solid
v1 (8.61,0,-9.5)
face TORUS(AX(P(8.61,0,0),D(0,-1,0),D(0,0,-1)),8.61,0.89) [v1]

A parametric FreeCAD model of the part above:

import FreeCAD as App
import Part
import Sketcher

V = App.Vector

doc = App.newDocument("Part")
params = doc.addObject("Spreadsheet::Sheet", "Params")
for row, (alias, value) in enumerate([
    ("sketch1_diameter", "1.78 mm"),
    ("sketch1_height", "10 mm"),
    ("revolution_angle", "360 deg"),
], start=1):
    params.set(f"A{row}", alias)
    params.set(f"B{row}", "=" + value)
    params.setAlias(f"B{row}", alias)

body = doc.addObject("PartDesign::Body", "Body")

sketch1 = body.newObject("Sketcher::SketchObject", "Sketch")
sketch1.AttachmentSupport = (doc.getObject("XY_Plane"), [""])
sketch1.MapMode = "FlatFace"
sketch1.addGeometry(Part.Circle(V(0, 0, 0), V(0, 0, 1), 0.9), False)
sketch1.addGeometry(Part.LineSegment(V(8.6, 0, 0), V(8.6, 10, 0)), True)
sketch1.addConstraint(Sketcher.Constraint("Vertical", 1))
sketch1.addConstraint(Sketcher.Constraint("Coincident", 0, 3, -1, 1))
sketch1.addConstraint(Sketcher.Constraint("PointOnObject", 1, 1, -1))
sketch1.addConstraint(Sketcher.Constraint("Diameter", 0, 1.78))
sketch1.addConstraint(Sketcher.Constraint("DistanceY", 1, 1, 1, 2, 10.0))
sketch1.addConstraint(Sketcher.Constraint("DistanceX", -1, 1, 1, 1, 8.61))
sketch1.setExpression("Constraints[3]", "Params.sketch1_diameter")
sketch1.setExpression("Constraints[4]", "Params.sketch1_height")
revolution = body.newObject("PartDesign::Revolution", "Revolution")
revolution.Profile = sketch1
revolution.ReferenceAxis = (sketch1, ["Axis0"])
revolution.setExpression("Angle", "Params.revolution_angle")

doc.recompute()
